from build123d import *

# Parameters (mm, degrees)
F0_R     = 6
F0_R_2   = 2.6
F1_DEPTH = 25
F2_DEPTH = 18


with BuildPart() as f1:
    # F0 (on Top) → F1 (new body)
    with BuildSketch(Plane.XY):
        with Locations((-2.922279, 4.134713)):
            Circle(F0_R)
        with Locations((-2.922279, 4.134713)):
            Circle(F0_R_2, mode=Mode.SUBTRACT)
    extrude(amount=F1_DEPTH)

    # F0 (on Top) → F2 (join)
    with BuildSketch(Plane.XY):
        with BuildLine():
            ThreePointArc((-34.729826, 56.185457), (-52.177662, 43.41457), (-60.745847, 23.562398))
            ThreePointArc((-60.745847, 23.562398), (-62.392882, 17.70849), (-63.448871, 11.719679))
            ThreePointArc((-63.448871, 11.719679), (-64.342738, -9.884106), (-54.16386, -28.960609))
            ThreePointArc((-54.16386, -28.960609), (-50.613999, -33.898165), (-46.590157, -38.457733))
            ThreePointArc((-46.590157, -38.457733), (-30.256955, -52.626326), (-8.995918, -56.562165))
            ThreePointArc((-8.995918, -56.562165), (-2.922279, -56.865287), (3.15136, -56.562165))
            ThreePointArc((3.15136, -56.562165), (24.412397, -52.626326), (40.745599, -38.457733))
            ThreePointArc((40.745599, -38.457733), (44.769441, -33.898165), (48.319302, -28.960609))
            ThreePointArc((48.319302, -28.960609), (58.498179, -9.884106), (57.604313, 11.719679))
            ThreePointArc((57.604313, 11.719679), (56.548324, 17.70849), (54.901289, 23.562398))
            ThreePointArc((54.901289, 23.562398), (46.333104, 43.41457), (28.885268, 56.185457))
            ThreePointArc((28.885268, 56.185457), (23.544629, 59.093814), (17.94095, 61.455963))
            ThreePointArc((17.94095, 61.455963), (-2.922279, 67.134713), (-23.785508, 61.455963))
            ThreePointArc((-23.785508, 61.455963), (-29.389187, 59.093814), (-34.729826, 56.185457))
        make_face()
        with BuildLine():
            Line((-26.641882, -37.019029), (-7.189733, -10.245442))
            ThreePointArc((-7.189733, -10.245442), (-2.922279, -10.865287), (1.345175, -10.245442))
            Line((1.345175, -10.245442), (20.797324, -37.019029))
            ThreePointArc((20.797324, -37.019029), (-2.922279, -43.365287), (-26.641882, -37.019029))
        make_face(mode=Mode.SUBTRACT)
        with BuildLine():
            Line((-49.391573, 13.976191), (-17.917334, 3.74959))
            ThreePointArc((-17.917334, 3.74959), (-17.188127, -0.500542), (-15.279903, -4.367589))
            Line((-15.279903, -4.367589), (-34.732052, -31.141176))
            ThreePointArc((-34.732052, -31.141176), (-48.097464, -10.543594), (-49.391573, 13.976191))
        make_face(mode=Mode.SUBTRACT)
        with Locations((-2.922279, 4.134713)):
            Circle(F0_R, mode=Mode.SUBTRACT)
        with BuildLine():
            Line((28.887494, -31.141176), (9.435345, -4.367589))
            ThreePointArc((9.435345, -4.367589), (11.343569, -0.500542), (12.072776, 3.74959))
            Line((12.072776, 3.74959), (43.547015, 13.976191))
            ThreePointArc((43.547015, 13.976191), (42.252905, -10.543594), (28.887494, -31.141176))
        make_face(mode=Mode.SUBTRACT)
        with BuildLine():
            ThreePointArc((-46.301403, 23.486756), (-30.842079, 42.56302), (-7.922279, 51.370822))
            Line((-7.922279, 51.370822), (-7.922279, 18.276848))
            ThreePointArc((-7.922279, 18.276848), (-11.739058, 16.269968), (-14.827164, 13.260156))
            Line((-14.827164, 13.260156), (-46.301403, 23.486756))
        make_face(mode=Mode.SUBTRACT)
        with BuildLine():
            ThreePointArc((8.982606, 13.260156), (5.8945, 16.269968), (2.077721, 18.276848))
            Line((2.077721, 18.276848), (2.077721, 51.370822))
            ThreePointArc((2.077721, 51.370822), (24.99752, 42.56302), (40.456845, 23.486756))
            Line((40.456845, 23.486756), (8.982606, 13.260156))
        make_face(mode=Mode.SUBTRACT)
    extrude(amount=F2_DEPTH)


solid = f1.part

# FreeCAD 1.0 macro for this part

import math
import FreeCAD as App
import Part
import Sketcher

V = App.Vector
Q = App.Units.Quantity

doc = App.newDocument("Part")
body = doc.addObject("PartDesign::Body", "Body")

# Sketch on XY plane
sketch1 = body.newObject("Sketcher::SketchObject", "Sketch")
sketch1.AttachmentSupport = (doc.getObject("XY_Plane"), [""])
sketch1.MapMode = "FlatFace"
sketch1.addGeometry([
    Part.Circle(V(-2.922279, 4.134713, 0), V(0, 0, 1), 6),
    Part.Circle(V(-2.922279, 4.134713, 0), V(0, 0, 1), 2.6),
], False)
sketch1.addConstraint([
    Sketcher.Constraint("Coincident", 1, 3, 0, 3),
    Sketcher.Constraint("Diameter", 0, 12.0),
    Sketcher.Constraint("Diameter", 1, 5.2),
    Sketcher.Constraint("DistanceX", 0, 3, -1, 1, 2.922279),
    Sketcher.Constraint("DistanceY", -1, 1, 0, 3, 4.134713),
])
pad1 = body.newObject("PartDesign::Pad", "Pad")
pad1.Profile = sketch1
pad1.Length = 25

# Sketch on XY plane
sketch2 = body.newObject("Sketcher::SketchObject", "Sketch001")
sketch2.AttachmentSupport = (doc.getObject("XY_Plane"), [""])
sketch2.MapMode = "FlatFace"
sketch2.addGeometry([
    Part.ArcOfCircle(Part.Circle(V(-19.994184, 17.749104, 0), V(0, 0, 1), 41.164213), math.radians(110.975711), math.radians(171.881433)),  # 0
    Part.ArcOfCircle(Part.Circle(V(-2.922342, 4.134724, 0), V(0, 0, 1), 60.999937), math.radians(161.428563), math.radians(172.857145)),  # 1
    Part.ArcOfCircle(Part.Circle(V(-24.210605, -0.724208, 0), V(0, 0, 1), 41.164206), math.radians(162.404278), math.radians(223.31001)),  # 2
    Part.ArcOfCircle(Part.Circle(V(-2.922241, 4.13474, 0), V(0, 0, 1), 61.000046), math.radians(-147.142855), math.radians(-135.714293)),  # 3
    Part.ArcOfCircle(Part.Circle(V(-12.396473, -15.538655, 0), V(0, 0, 1), 41.164209), math.radians(-146.16715), math.radians(-85.261424)),  # 4
    Part.ArcOfCircle(Part.Circle(V(-2.922279, 4.134861, 0), V(0, 0, 1), 61.000148), math.radians(-95.714272), math.radians(-84.285728)),  # 5
    Part.ArcOfCircle(Part.Circle(V(6.551915, -15.538655, 0), V(0, 0, 1), 41.164209), math.radians(-94.738576), math.radians(-33.83285)),  # 6
    Part.ArcOfCircle(Part.Circle(V(-2.922317, 4.13474, 0), V(0, 0, 1), 61.000046), math.radians(-44.285707), math.radians(-32.857145)),  # 7
    Part.ArcOfCircle(Part.Circle(V(18.36604, -0.724206, 0), V(0, 0, 1), 41.164212), math.radians(-43.310005), math.radians(17.595717)),  # 8
    Part.ArcOfCircle(Part.Circle(V(-2.922216, 4.134724, 0), V(0, 0, 1), 60.999937), math.radians(7.142855), math.radians(18.571437)),  # 9
    Part.ArcOfCircle(Part.Circle(V(14.149626, 17.749104, 0), V(0, 0, 1), 41.164213), math.radians(8.118567), math.radians(69.024289)),  # 10
    Part.ArcOfCircle(Part.Circle(V(-2.922287, 4.134699, 0), V(0, 0, 1), 61.000016), math.radians(58.571429), math.radians(69.999997)),  # 11
    Part.ArcOfCircle(Part.Circle(V(-2.922279, 25.970502, 0), V(0, 0, 1), 41.164211), math.radians(59.547138), math.radians(120.452862)),  # 12
    Part.ArcOfCircle(Part.Circle(V(-2.922271, 4.134699, 0), V(0, 0, 1), 61.000016), math.radians(110.000003), math.radians(121.428571)),  # 13
    Part.ArcOfCircle(Part.Circle(V(-2.922282, 4.134712, 0), V(0, 0, 1), 47.499997), math.radians(168.042326), math.radians(227.957674)),  # 14
    Part.LineSegment(V(-49.391573, 13.976191, 0), V(-17.917334, 3.74959, 0)),  # 15
    Part.ArcOfCircle(Part.Circle(V(-2.922283, 4.134711, 0), V(0, 0, 1), 14.999996), math.radians(-178.528785), math.radians(-145.471219)),  # 16
    Part.LineSegment(V(-15.279903, -4.367589, 0), V(-34.732052, -31.141176, 0)),  # 17
    Part.ArcOfCircle(Part.Circle(V(-2.922279, 4.134717, 0), V(0, 0, 1), 47.500004), math.radians(-119.957669), math.radians(-60.042331)),  # 18
    Part.LineSegment(V(-26.641882, -37.019029, 0), V(-7.189733, -10.245442, 0)),  # 19
    Part.ArcOfCircle(Part.Circle(V(-2.922279, 4.13473, 0), V(0, 0, 1), 15.000017), math.radians(-106.528761), math.radians(-73.471239)),  # 20
    Part.LineSegment(V(1.345175, -10.245442, 0), V(20.797324, -37.019029, 0)),  # 21
    Part.ArcOfCircle(Part.Circle(V(-2.922282, 4.134714, 0), V(0, 0, 1), 47.500003), math.radians(-47.95767), math.radians(11.95767)),  # 22
    Part.LineSegment(V(28.887494, -31.141176, 0), V(9.435345, -4.367589, 0)),  # 23
    Part.ArcOfCircle(Part.Circle(V(-2.922275, 4.134711, 0), V(0, 0, 1), 14.999996), math.radians(-34.528781), math.radians(-1.471215)),  # 24
    Part.LineSegment(V(12.072776, 3.74959, 0), V(43.547015, 13.976191, 0)),  # 25
    Part.LineSegment(V(-14.827164, 13.260156, 0), V(-46.301403, 23.486756, 0)),  # 26
    Part.ArcOfCircle(Part.Circle(V(-2.92228, 4.134715, 0), V(0, 0, 1), 47.499998), math.radians(96.042327), math.radians(155.957673)),  # 27
    Part.LineSegment(V(-7.922279, 51.370822, 0), V(-7.922279, 18.276848, 0)),  # 28
    Part.ArcOfCircle(Part.Circle(V(-2.922287, 4.134723, 0), V(0, 0, 1), 14.999987), math.radians(109.471204), math.radians(142.528789)),  # 29
    Part.Circle(V(-2.922279, 4.134713, 0), V(0, 0, 1), 6),  # 30
    Part.LineSegment(V(40.456845, 23.486756, 0), V(8.982606, 13.260156, 0)),  # 31
    Part.ArcOfCircle(Part.Circle(V(-2.922271, 4.134723, 0), V(0, 0, 1), 14.999987), math.radians(37.471211), math.radians(70.528796)),  # 32
    Part.LineSegment(V(2.077721, 18.276848, 0), V(2.077721, 51.370822, 0)),  # 33
    Part.ArcOfCircle(Part.Circle(V(-2.92228, 4.134712, 0), V(0, 0, 1), 47.500002), math.radians(24.042329), math.radians(83.95767)),  # 34
], False)
sketch2.addConstraint([
    Sketcher.Constraint("Coincident", 0, 2, 1, 1),
    Sketcher.Constraint("Coincident", 1, 2, 2, 1),
    Sketcher.Constraint("Coincident", 2, 2, 3, 1),
    Sketcher.Constraint("Coincident", 3, 2, 4, 1),
    Sketcher.Constraint("Coincident", 4, 2, 5, 1),
    Sketcher.Constraint("Coincident", 5, 2, 6, 1),
    Sketcher.Constraint("Coincident", 6, 2, 7, 1),
    Sketcher.Constraint("Coincident", 7, 2, 8, 1),
    Sketcher.Constraint("Coincident", 8, 2, 9, 1),
    Sketcher.Constraint("Coincident", 9, 2, 10, 1),
    Sketcher.Constraint("Coincident", 10, 2, 11, 1),
    Sketcher.Constraint("Coincident", 11, 2, 12, 1),
    Sketcher.Constraint("Coincident", 12, 2, 13, 1),
    Sketcher.Constraint("Coincident", 13, 2, 0, 1),
    Sketcher.Constraint("Coincident", 14, 1, 15, 1),
    Sketcher.Constraint("Coincident", 15, 2, 16, 1),
    Sketcher.Constraint("Coincident", 16, 2, 17, 1),
    Sketcher.Constraint("Coincident", 17, 2, 14, 2),
    Sketcher.Constraint("Coincident", 18, 1, 19, 1),
    Sketcher.Constraint("Coincident", 19, 2, 20, 1),
    Sketcher.Constraint("Coincident", 20, 2, 21, 1),
    Sketcher.Constraint("Coincident", 21, 2, 18, 2),
    Sketcher.Constraint("Coincident", 22, 1, 23, 1),
    Sketcher.Constraint("Coincident", 23, 2, 24, 1),
    Sketcher.Constraint("Coincident", 24, 2, 25, 1),
    Sketcher.Constraint("Coincident", 25, 2, 22, 2),
    Sketcher.Constraint("Coincident", 26, 2, 27, 2),
    Sketcher.Constraint("Coincident", 27, 1, 28, 1),
    Sketcher.Constraint("Coincident", 28, 2, 29, 1),
    Sketcher.Constraint("Coincident", 29, 2, 26, 1),
    Sketcher.Constraint("Coincident", 31, 2, 32, 1),
    Sketcher.Constraint("Coincident", 32, 2, 33, 1),
    Sketcher.Constraint("Coincident", 33, 2, 34, 2),
    Sketcher.Constraint("Coincident", 34, 1, 31, 1),
    Sketcher.Constraint("Vertical", 28),
    Sketcher.Constraint("Vertical", 33),
    Sketcher.Constraint("Coincident", 16, 3, 14, 3),
    Sketcher.Constraint("Coincident", 18, 3, 14, 3),
    Sketcher.Constraint("Coincident", 22, 3, 14, 3),
    Sketcher.Constraint("Coincident", 24, 3, 14, 3),
    Sketcher.Constraint("Coincident", 27, 3, 14, 3),
    Sketcher.Constraint("Coincident", 30, 3, 14, 3),
    Sketcher.Constraint("Coincident", 34, 3, 14, 3),
    Sketcher.Constraint("Equal", 4, 6),
    Sketcher.Constraint("Equal", 3, 7),
    Sketcher.Constraint("Equal", 0, 8),
    Sketcher.Constraint("Equal", 1, 9),
    Sketcher.Constraint("Equal", 8, 10),
    Sketcher.Constraint("Equal", 10, 12),
    Sketcher.Constraint("Equal", 11, 13),
    Sketcher.Constraint("Equal", 18, 22),
    Sketcher.Constraint("Equal", 16, 24),
    Sketcher.Constraint("Equal", 14, 27),
    Sketcher.Constraint("Equal", 29, 32),
    Sketcher.Constraint("Equal", 22, 34),
    Sketcher.Constraint("Parallel", 17, 19),
    Sketcher.Constraint("Parallel", 21, 23),
    Sketcher.Constraint("Parallel", 15, 26),
    Sketcher.Constraint("Parallel", 25, 31),
    Sketcher.Constraint("Horizontal", 4, 3, 6, 3),
    Sketcher.Constraint("Horizontal", 3, 3, 7, 3),
    Sketcher.Constraint("Horizontal", 2, 3, 8, 3),
    Sketcher.Constraint("Horizontal", 1, 3, 9, 3),
    Sketcher.Constraint("Horizontal", 0, 3, 10, 3),
    Sketcher.Constraint("Horizontal", 11, 3, 13, 3),
    Sketcher.Constraint("Horizontal", 9, 3, 29, 3),
    Sketcher.Constraint("Horizontal", 29, 3, 32, 3),
    Sketcher.Constraint("Horizontal", 4, 2, 5, 2),
    Sketcher.Constraint("Horizontal", 3, 2, 6, 2),
    Sketcher.Constraint("Horizontal", 2, 2, 7, 2),
    Sketcher.Constraint("Horizontal", 1, 2, 8, 2),
    Sketcher.Constraint("Horizontal", 0, 2, 9, 2),
    Sketcher.Constraint("Horizontal", 11, 2, 12, 2),
    Sketcher.Constraint("Horizontal", 10, 2, 13, 2),
    Sketcher.Constraint("Horizontal", 19, 2, 20, 2),
    Sketcher.Constraint("Horizontal", 18, 1, 21, 2),
    Sketcher.Constraint("Horizontal", 17, 2, 22, 1),
    Sketcher.Constraint("Horizontal", 16, 2, 23, 2),
    Sketcher.Constraint("Horizontal", 15, 2, 24, 2),
    Sketcher.Constraint("Horizontal", 14, 1, 25, 2),
    Sketcher.Constraint("Horizontal", 29, 2, 31, 2),
    Sketcher.Constraint("Horizontal", 28, 2, 32, 2),
    Sketcher.Constraint("Horizontal", 27, 1, 33, 2),
    Sketcher.Constraint("Horizontal", 26, 2, 34, 1),
    Sketcher.Constraint("Vertical", 5, 3, 12, 3),
    Sketcher.Constraint("Vertical", 12, 3, 18, 3),
    Sketcher.Constraint("Vertical", 11, 3, 29, 3),
    Sketcher.Constraint("Equal", 15, 17),
    Sketcher.Constraint("Equal", 17, 19),
    Sketcher.Constraint("Equal", 25, 26),
    Sketcher.Constraint("Diameter", 30, 12.0),
    Sketcher.Constraint("Radius", 34, 47.500002),
    Sketcher.Constraint("Angle", 15, Q("-18.000001 deg")),
    Sketcher.Constraint("Angle", 17, Q("-125.999999 deg")),
    Sketcher.Constraint("DistanceX", 27, 1, 12, 3, 5.0),
    Sketcher.Constraint("Radius", 4, 41.164209),
    Sketcher.Constraint("Radius", 12, 41.164211),
    Sketcher.Constraint("Radius", 1, 60.999937),
    Sketcher.Constraint("Radius", 3, 61.000046),
    Sketcher.Constraint("Radius", 5, 61.000148),
    Sketcher.Constraint("Radius", 11, 61.000016),
    Sketcher.Constraint("Radius", 16, 14.999996),
    Sketcher.Constraint("Radius", 20, 15.000017),
    Sketcher.Constraint("Radius", 29, 14.999987),
    Sketcher.Constraint("DistanceY", -1, 1, 11, 3, 4.134699),
    Sketcher.Constraint("DistanceY", -1, 1, 0, 2, 23.562398),
    Sketcher.Constraint("DistanceX", -1, 1, 6, 2, 40.745599),
    Sketcher.Constraint("DistanceX", -1, 1, 7, 2, 48.319302),
    Sketcher.Constraint("DistanceX", 1, 3, 3, 3, 0.000101),
    Sketcher.Constraint("DistanceY", 0, 3, 12, 3, 8.221398),
    Sketcher.Constraint("DistanceY", 2, 2, 2, 3, 28.236401),
    Sketcher.Constraint("DistanceY", 2, 3, 14, 1, 14.700399),
    Sketcher.Constraint("DistanceX", 2, 3, 16, 2, 8.930702),
    Sketcher.Constraint("DistanceX", 26, 2, 2, 3, 22.090798),
    Sketcher.Constraint("DistanceY", 28, 2, 28, 1, 33.093974),
    Sketcher.Constraint("DistanceX", 3, 3, -1, 1, 2.922241),
    Sketcher.Constraint("DistanceY", -1, 1, 3, 3, 4.13474),
    Sketcher.Constraint("DistanceX", 5, 3, -1, 1, 2.922279),
    Sketcher.Constraint("DistanceY", -1, 1, 5, 3, 4.134861),
    Sketcher.Constraint("DistanceY", -1, 1, 20, 3, 4.13473),
    Sketcher.Constraint("DistanceX", 4, 2, -1, 1, 8.995918),
    Sketcher.Constraint("DistanceX", -1, 1, 11, 2, 17.94095),
])
pad2 = body.newObject("PartDesign::Pad", "Pad001")
pad2.Profile = sketch2
pad2.Length = 18

doc.recompute()
